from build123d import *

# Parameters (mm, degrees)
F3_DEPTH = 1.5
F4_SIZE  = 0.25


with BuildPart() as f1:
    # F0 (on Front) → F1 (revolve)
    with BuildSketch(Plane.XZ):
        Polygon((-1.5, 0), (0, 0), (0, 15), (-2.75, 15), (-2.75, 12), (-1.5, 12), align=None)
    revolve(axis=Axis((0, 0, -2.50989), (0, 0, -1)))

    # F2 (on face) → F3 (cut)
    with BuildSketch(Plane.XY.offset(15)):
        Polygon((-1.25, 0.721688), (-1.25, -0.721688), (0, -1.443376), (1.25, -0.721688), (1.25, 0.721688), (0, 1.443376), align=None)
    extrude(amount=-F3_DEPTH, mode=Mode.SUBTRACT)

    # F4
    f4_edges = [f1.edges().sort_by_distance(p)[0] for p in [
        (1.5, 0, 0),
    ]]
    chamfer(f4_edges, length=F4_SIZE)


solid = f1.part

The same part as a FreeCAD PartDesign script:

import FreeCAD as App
import Part
import Sketcher

V = App.Vector
Q = App.Units.Quantity


def edges_at(feature, points):
    """Names of the edges that pass closest to the given points."""
    edges = feature.Shape.Edges
    near = lambda p: min(range(len(edges)), key=lambda i: edges[i].distToShape(Part.Vertex(*p))[0])
    return sorted({f"Edge{near(p) + 1}" for p in points})


def add_polygon(sketch, points):
    """Adds a closed chain of lines whose ends are joined by coincident constraints."""
    first, n = sketch.GeometryCount, len(points)
    for a, b in zip(points, points[1:] + points[:1]):
        sketch.addGeometry(Part.LineSegment(App.Vector(*a, 0), App.Vector(*b, 0)), False)
    for i in range(n):
        sketch.addConstraint(Sketcher.Constraint("Coincident", first + i, 2, first + (i + 1) % n, 1))

doc = App.newDocument("Part")
body = doc.addObject("PartDesign::Body", "Body")

sketch1 = doc.addObject("Sketcher::SketchObject", "Sketch")
body.addObject(sketch1)
sketch1.AttachmentSupport = (doc.XZ_Plane, [""])
sketch1.MapMode = "FlatFace"
add_polygon(sketch1, [(-1.5, 0), (0, 0), (0, 15), (-2.8, 15), (-2.8, 12), (-1.5, 12)])
sketch1.addConstraint(Sketcher.Constraint("Horizontal", 0))
sketch1.addConstraint(Sketcher.Constraint("Vertical", 1))
sketch1.addConstraint(Sketcher.Constraint("Horizontal", 2))
sketch1.addConstraint(Sketcher.Constraint("Vertical", 3))
sketch1.addConstraint(Sketcher.Constraint("Horizontal", 4))
sketch1.addConstraint(Sketcher.Constraint("Vertical", 5))
sketch1.addConstraint(Sketcher.Constraint("Coincident", 0, 2, -1, 1))
sketch1.addConstraint(Sketcher.Constraint("DistanceY", 1, 1, 1, 2, 15.0))
sketch1.addConstraint(Sketcher.Constraint("DistanceY", 3, 2, 3, 1, 3.0))
sketch1.addConstraint(Sketcher.Constraint("DistanceX", 0, 1, 0, 2, 1.5))
sketch1.addConstraint(Sketcher.Constraint("DistanceX", 2, 2, 2, 1, 2.75))
revolution = doc.addObject("PartDesign::Revolution", "Revolution")
body.addObject(revolution)
revolution.Profile = sketch1
revolution.ReferenceAxis = (sketch1, ["V_Axis"])
revolution.Angle = 360

sketch2 = doc.addObject("Sketcher::SketchObject", "Sketch001")
body.addObject(sketch2)
sketch2.AttachmentSupport = (doc.XY_Plane, [""])
sketch2.MapMode = "FlatFace"
sketch2.AttachmentOffset = App.Placement(V(0, 0, 15), App.Rotation())
add_polygon(sketch2, [(-1.2, 0.7), (-1.2, -0.7), (0, -1.4), (1.2, -0.7), (1.2, 0.7), (0, 1.4)])
sketch2.addConstraint(Sketcher.Constraint("Vertical", 0))
sketch2.addConstraint(Sketcher.Constraint("Vertical", 3))
sketch2.addConstraint(Sketcher.Constraint("Symmetric", 0, 2, 3, 2, -1, 1))
sketch2.addConstraint(Sketcher.Constraint("Symmetric", 1, 2, 4, 2, -1, 1))
sketch2.addConstraint(Sketcher.Constraint("PointOnObject", 1, 2, -2))
sketch2.addConstraint(Sketcher.Constraint("Parallel", 2, 5))
sketch2.addConstraint(Sketcher.Constraint("Horizontal", 0, 2, 2, 2))
sketch2.addConstraint(Sketcher.Constraint("Angle", 1, Q("-30.000006 deg")))
sketch2.addConstraint(Sketcher.Constraint("DistanceX", 0, 2, 2, 2, 2.5))
sketch2.addConstraint(Sketcher.Constraint("DistanceY", 0, 2, 0, 1, 1.443376))
pocket1 = doc.addObject("PartDesign::Pocket", "Pocket")
body.addObject(pocket1)
pocket1.Profile = sketch2
pocket1.Length = 1.5
doc.recompute()

chamfer = doc.addObject("PartDesign::Chamfer", "Chamfer")
body.addObject(chamfer)
chamfer.Base = (pocket1, edges_at(pocket1, [(1.5, 0, 0)]))
chamfer.Size = 0.25

doc.recompute()
